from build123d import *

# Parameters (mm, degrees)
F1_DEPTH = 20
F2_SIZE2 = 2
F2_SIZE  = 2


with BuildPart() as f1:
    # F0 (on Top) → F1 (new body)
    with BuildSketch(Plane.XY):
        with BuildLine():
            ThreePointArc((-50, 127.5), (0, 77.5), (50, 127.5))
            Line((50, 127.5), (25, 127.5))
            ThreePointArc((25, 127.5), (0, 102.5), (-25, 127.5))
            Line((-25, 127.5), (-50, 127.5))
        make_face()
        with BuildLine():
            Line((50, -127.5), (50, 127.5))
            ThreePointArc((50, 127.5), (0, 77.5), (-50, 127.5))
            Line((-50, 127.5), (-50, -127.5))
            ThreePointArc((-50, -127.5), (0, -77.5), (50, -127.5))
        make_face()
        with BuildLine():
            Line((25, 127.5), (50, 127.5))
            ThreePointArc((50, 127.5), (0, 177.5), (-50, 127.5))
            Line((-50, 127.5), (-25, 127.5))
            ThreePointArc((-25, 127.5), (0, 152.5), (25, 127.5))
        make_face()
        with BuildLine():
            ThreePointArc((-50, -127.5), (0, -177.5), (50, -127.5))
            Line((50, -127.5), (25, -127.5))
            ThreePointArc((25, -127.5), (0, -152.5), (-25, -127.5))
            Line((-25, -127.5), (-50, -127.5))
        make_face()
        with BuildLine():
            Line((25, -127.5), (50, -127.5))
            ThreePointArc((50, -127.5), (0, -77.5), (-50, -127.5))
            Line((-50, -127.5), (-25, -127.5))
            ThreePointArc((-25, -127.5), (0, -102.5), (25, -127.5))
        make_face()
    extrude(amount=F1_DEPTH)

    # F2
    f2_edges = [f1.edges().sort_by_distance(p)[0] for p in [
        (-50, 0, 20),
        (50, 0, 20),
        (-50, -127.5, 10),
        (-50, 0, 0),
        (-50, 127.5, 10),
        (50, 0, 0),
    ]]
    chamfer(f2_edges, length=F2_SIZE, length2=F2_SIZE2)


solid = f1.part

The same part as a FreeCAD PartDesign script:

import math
import FreeCAD as App
import Part
import Sketcher
Q = App.Units.Quantity


def edges_at(feature, points):
    """Names of the edges that pass closest to the given points."""
    edges = feature.Shape.Edges
    near = lambda p: min(range(len(edges)), key=lambda i: edges[i].distToShape(Part.Vertex(*p))[0])
    return sorted({f"Edge{near(p) + 1}" for p in points})

doc = App.newDocument("Part")
body = doc.addObject("PartDesign::Body", "Body")

sketch1 = body.newObject("Sketcher::SketchObject", "Sketch")
sketch1.AttachmentSupport = (doc.getObject("XY_Plane"), [""])
sketch1.MapMode = "FlatFace"
sketch1.addGeometry(Part.LineSegment(App.Vector(-50, 128, 0), App.Vector(-50, -128, 0)), False)
sketch1.addGeometry(Part.ArcOfCircle(Part.Circle(App.Vector(0, -128, 0), App.Vector(0, 0, 1), 50), math.radians(180), math.radians(360)), False)
sketch1.addGeometry(Part.LineSegment(App.Vector(50, -128, 0), App.Vector(50, 128, 0)), False)
sketch1.addGeometry(Part.ArcOfCircle(Part.Circle(App.Vector(0, 128, 0), App.Vector(0, 0, 1), 50), math.radians(0), math.radians(180)), False)
sketch1.addGeometry(Part.Circle(App.Vector(0, 128, 0), App.Vector(0, 0, 1), 25), False)
sketch1.addGeometry(Part.Circle(App.Vector(0, -128, 0), App.Vector(0, 0, 1), 25), False)
sketch1.addConstraint(Sketcher.Constraint("Tangent", 0, 2, 1, 1))
sketch1.addConstraint(Sketcher.Constraint("Tangent", 1, 2, 2, 1))
sketch1.addConstraint(Sketcher.Constraint("Tangent", 2, 2, 3, 1))
sketch1.addConstraint(Sketcher.Constraint("Tangent", 3, 2, 0, 1))
sketch1.addConstraint(Sketcher.Constraint("Vertical", 0))
sketch1.addConstraint(Sketcher.Constraint("Vertical", 2))
sketch1.addConstraint(Sketcher.Constraint("Coincident", 4, 3, 3, 3))
sketch1.addConstraint(Sketcher.Constraint("Coincident", 5, 3, 1, 3))
sketch1.addConstraint(Sketcher.Constraint("Equal", 4, 5))
sketch1.addConstraint(Sketcher.Constraint("Symmetric", 1, 3, 3, 3, -1, 1))
sketch1.addConstraint(Sketcher.Constraint("Diameter", 4, Q("50 mm")))
sketch1.addConstraint(Sketcher.Constraint("Radius", 1, Q("50 mm")))
sketch1.addConstraint(Sketcher.Constraint("DistanceY", 0, 2, 0, 1, Q("255 mm")))
pad1 = body.newObject("PartDesign::Pad", "Pad")
pad1.Profile = sketch1
pad1.Length = 20
doc.recompute()

chamfer = body.newObject("PartDesign::Chamfer", "Chamfer")
chamfer.Base = (pad1, edges_at(pad1, [
    (-50, 0, 20),
    (50, 0, 20),
    (-50, -127.5, 10),
    (-50, 0, 0),
    (-50, 127.5, 10),
    (50, 0, 0),
]))
chamfer.ChamferType = "Two distances"
chamfer.Size = 2
chamfer.Size2 = 2

doc.recompute()
